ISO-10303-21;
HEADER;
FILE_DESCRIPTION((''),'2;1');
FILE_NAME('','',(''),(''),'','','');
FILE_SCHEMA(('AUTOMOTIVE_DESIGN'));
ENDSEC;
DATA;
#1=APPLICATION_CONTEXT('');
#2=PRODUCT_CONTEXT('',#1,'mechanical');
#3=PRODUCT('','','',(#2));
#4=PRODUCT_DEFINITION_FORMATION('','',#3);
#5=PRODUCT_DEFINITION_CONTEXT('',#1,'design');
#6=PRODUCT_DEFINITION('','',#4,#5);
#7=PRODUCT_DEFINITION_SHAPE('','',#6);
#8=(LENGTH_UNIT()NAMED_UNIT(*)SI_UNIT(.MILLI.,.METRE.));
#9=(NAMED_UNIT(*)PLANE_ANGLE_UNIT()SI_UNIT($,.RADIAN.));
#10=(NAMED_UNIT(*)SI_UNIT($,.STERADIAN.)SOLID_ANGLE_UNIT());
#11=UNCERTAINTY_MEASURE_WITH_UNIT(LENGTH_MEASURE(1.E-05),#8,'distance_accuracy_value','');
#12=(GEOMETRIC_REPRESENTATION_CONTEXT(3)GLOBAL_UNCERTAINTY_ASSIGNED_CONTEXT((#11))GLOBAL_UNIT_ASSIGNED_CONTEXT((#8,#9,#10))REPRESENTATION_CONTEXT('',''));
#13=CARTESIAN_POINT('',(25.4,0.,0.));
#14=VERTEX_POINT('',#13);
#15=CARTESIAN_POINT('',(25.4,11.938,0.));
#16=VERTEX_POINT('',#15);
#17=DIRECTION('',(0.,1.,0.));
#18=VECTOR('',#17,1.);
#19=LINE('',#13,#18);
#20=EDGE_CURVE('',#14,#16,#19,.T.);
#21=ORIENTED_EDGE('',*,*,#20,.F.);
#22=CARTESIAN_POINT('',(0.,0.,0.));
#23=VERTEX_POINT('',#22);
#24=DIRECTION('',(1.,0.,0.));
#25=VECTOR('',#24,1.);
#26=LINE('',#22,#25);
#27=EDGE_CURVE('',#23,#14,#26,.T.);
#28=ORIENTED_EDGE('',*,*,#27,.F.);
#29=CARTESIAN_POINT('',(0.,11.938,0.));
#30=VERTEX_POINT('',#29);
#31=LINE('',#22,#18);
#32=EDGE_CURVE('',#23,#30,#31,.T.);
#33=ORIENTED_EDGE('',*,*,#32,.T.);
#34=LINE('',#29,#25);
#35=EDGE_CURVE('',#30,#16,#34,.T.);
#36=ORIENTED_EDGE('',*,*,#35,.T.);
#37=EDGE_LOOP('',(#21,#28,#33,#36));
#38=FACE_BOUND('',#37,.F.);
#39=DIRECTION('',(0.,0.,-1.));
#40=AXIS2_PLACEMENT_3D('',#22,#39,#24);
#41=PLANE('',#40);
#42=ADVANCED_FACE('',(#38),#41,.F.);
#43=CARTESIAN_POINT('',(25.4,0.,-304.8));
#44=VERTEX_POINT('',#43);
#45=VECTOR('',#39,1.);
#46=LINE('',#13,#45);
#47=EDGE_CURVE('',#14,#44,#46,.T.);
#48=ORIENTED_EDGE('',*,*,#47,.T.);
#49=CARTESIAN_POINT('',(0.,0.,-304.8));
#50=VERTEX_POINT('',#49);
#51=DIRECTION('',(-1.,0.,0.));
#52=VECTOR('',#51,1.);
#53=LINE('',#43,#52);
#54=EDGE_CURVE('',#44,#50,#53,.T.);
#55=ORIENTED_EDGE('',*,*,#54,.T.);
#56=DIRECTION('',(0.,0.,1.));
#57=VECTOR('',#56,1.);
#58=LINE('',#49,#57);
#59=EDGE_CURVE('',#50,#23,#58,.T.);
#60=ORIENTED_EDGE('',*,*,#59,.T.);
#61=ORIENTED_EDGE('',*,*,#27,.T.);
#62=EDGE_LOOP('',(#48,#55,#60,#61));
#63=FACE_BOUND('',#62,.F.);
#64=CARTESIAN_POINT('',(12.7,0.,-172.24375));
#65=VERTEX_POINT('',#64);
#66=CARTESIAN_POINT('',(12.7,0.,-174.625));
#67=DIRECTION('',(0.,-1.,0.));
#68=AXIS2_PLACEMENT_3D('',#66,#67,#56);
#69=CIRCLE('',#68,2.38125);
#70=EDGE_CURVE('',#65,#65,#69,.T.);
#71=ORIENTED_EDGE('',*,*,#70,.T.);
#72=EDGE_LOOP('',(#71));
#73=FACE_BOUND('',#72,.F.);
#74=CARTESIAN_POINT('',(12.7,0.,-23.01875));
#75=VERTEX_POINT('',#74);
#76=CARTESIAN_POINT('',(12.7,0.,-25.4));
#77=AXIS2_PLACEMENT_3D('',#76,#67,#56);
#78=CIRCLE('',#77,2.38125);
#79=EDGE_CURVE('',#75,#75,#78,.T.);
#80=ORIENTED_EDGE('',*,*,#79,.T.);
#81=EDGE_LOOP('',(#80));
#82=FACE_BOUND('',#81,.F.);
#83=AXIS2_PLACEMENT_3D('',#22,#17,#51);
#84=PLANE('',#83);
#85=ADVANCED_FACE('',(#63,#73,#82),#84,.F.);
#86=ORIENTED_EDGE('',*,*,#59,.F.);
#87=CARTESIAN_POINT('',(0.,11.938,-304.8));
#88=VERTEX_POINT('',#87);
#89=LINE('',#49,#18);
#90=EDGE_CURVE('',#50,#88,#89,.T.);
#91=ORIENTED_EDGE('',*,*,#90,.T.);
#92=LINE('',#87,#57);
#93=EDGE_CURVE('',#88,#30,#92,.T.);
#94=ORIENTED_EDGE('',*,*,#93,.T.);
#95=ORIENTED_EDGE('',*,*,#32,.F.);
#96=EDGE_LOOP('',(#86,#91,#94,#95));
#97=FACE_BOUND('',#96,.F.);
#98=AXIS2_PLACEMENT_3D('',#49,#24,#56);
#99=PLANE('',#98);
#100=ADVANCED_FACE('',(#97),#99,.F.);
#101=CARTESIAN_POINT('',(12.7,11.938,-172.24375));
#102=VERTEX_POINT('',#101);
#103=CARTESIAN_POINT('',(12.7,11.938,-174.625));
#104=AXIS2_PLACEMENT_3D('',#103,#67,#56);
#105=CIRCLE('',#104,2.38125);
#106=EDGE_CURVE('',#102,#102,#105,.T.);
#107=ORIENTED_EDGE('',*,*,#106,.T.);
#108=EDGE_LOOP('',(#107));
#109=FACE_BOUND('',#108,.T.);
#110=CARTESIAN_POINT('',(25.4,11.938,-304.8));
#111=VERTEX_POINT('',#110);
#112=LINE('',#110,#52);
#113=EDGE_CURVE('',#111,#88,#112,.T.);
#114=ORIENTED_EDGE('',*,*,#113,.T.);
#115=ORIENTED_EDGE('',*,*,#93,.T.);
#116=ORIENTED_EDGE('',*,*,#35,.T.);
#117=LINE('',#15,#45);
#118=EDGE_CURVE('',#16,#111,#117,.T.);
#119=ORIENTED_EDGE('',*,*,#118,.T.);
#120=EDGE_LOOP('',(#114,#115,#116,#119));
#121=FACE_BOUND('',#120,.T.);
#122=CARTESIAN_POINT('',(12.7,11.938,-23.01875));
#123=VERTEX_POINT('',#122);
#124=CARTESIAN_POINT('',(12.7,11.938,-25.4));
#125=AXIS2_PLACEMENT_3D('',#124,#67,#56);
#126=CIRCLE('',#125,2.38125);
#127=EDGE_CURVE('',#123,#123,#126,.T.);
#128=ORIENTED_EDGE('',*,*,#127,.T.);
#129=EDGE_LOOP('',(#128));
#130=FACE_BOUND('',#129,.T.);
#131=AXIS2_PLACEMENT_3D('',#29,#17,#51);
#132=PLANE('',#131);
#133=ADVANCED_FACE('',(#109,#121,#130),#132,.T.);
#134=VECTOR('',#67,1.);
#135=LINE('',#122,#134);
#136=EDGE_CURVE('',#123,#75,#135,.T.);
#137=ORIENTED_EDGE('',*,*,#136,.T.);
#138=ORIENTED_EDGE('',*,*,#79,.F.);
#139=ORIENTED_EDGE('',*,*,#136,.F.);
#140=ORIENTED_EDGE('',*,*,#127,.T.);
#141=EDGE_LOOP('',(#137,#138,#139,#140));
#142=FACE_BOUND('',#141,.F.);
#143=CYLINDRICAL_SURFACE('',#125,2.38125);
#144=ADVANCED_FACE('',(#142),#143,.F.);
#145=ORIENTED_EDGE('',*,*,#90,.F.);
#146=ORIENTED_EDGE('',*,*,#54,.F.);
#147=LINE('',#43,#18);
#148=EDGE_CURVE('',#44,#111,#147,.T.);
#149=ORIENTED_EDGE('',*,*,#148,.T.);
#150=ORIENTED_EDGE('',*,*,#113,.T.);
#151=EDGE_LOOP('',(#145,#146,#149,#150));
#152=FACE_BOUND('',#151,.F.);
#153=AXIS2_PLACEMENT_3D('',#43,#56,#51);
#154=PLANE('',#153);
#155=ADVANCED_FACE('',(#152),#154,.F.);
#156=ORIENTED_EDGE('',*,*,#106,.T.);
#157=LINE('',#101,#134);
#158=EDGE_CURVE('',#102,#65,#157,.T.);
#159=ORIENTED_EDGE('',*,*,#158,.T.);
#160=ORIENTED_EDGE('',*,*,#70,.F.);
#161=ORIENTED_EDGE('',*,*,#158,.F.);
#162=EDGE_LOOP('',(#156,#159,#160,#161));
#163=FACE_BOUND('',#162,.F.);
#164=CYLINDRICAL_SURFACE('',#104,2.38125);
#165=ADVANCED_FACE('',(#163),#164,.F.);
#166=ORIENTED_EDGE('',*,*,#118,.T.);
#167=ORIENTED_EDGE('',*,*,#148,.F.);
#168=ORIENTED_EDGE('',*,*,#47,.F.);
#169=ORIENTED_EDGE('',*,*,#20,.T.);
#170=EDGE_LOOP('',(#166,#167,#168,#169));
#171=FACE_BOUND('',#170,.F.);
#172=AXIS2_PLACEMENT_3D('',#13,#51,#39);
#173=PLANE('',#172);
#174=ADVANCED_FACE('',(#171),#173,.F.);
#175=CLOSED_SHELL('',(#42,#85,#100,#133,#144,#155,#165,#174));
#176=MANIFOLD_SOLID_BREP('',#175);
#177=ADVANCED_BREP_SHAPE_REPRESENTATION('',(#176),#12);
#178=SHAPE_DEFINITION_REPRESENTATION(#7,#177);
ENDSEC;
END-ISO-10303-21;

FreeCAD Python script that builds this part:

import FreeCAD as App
import Part
import Sketcher
from FreeCAD import Vector
Q = App.Units.Quantity

doc = App.newDocument("Part")
params = doc.addObject("Spreadsheet::Sheet", "Params")
for row, (alias, value) in enumerate([
    ("sketch1_width", "1 in"),
    ("sketch1_height", "12 in"),
    ("pad1_length", "0.47 in"),
    ("sketch2_diameter", "0.1875 in"),
    ("hole_diameter", "0.1875 in"),
], start=1):
    params.set(f"A{row}", alias)
    params.set(f"B{row}", "=" + value)
    params.setAlias(f"B{row}", alias)

body = doc.addObject("PartDesign::Body", "Body")

# Sketch on XZ plane
sketch1 = body.newObject("Sketcher::SketchObject", "Sketch")
sketch1.AttachmentSupport = (doc.getObject("XZ_Plane"), [""])
sketch1.MapMode = "FlatFace"
sketch1.addGeometry([
    Part.LineSegment(Vector(0, -305, 0), Vector(0, 0, 0)),
    Part.LineSegment(Vector(0, 0, 0), Vector(25, 0, 0)),
    Part.LineSegment(Vector(25, 0, 0), Vector(25, -305, 0)),
    Part.LineSegment(Vector(25, -305, 0), Vector(0, -305, 0)),
], False)
sketch1.addConstraint([
    Sketcher.Constraint("Coincident", 0, 2, 1, 1),
    Sketcher.Constraint("Coincident", 1, 2, 2, 1),
    Sketcher.Constraint("Coincident", 2, 2, 3, 1),
    Sketcher.Constraint("Coincident", 3, 2, 0, 1),
    Sketcher.Constraint("Vertical", 0),
    Sketcher.Constraint("Horizontal", 1),
    Sketcher.Constraint("Vertical", 2),
    Sketcher.Constraint("Horizontal", 3),
    Sketcher.Constraint("Coincident", 0, 2, -1, 1),
    Sketcher.Constraint("DistanceX", 1, 1, 1, 2, Q("1 in")),
    Sketcher.Constraint("DistanceY", 0, 1, 0, 2, Q("12 in")),
])
sketch1.setExpression("Constraints[9]", "Params.sketch1_width")
sketch1.setExpression("Constraints[10]", "Params.sketch1_height")
pad1 = body.newObject("PartDesign::Pad", "Pad")
pad1.Profile = sketch1
pad1.setExpression("Length", "Params.pad1_length")
pad1.Reversed = True

# Sketch on XZ plane
sketch2 = body.newObject("Sketcher::SketchObject", "Sketch001")
sketch2.AttachmentSupport = (doc.getObject("XZ_Plane"), [""])
sketch2.MapMode = "FlatFace"
sketch2.AttachmentOffset = App.Placement(Vector(0, 0, -0.47 * 25.4), App.Rotation())
sketch2.addGeometry([
    Part.Circle(Vector(12.7, -25.4, 0), Vector(0, 0, 1), 2.4),
    Part.Circle(Vector(12.7, -174.6, 0), Vector(0, 0, 1), 2.4),
], False)
sketch2.addConstraint([
    Sketcher.Constraint("Equal", 0, 1),
    Sketcher.Constraint("Vertical", 0, 3, 1, 3),
    Sketcher.Constraint("Diameter", 0, Q("0.1875 in")),
    Sketcher.Constraint("DistanceY", 0, 3, -1, 1, Q("1 in")),
    Sketcher.Constraint("DistanceX", -1, 1, 0, 3, Q("0.5 in")),
    Sketcher.Constraint("DistanceY", 1, 3, -1, 1, Q("6.875 in")),
])
sketch2.setExpression("Constraints[2]", "Params.sketch2_diameter")
doc.recompute()
hole = body.newObject("PartDesign::Hole", "Hole")
hole.Profile = sketch2
hole.ThreadType = "None"
hole.setExpression("Diameter", "Params.hole_diameter")
hole.DepthType = "ThroughAll"
hole.Reversed = True

doc.recompute()
